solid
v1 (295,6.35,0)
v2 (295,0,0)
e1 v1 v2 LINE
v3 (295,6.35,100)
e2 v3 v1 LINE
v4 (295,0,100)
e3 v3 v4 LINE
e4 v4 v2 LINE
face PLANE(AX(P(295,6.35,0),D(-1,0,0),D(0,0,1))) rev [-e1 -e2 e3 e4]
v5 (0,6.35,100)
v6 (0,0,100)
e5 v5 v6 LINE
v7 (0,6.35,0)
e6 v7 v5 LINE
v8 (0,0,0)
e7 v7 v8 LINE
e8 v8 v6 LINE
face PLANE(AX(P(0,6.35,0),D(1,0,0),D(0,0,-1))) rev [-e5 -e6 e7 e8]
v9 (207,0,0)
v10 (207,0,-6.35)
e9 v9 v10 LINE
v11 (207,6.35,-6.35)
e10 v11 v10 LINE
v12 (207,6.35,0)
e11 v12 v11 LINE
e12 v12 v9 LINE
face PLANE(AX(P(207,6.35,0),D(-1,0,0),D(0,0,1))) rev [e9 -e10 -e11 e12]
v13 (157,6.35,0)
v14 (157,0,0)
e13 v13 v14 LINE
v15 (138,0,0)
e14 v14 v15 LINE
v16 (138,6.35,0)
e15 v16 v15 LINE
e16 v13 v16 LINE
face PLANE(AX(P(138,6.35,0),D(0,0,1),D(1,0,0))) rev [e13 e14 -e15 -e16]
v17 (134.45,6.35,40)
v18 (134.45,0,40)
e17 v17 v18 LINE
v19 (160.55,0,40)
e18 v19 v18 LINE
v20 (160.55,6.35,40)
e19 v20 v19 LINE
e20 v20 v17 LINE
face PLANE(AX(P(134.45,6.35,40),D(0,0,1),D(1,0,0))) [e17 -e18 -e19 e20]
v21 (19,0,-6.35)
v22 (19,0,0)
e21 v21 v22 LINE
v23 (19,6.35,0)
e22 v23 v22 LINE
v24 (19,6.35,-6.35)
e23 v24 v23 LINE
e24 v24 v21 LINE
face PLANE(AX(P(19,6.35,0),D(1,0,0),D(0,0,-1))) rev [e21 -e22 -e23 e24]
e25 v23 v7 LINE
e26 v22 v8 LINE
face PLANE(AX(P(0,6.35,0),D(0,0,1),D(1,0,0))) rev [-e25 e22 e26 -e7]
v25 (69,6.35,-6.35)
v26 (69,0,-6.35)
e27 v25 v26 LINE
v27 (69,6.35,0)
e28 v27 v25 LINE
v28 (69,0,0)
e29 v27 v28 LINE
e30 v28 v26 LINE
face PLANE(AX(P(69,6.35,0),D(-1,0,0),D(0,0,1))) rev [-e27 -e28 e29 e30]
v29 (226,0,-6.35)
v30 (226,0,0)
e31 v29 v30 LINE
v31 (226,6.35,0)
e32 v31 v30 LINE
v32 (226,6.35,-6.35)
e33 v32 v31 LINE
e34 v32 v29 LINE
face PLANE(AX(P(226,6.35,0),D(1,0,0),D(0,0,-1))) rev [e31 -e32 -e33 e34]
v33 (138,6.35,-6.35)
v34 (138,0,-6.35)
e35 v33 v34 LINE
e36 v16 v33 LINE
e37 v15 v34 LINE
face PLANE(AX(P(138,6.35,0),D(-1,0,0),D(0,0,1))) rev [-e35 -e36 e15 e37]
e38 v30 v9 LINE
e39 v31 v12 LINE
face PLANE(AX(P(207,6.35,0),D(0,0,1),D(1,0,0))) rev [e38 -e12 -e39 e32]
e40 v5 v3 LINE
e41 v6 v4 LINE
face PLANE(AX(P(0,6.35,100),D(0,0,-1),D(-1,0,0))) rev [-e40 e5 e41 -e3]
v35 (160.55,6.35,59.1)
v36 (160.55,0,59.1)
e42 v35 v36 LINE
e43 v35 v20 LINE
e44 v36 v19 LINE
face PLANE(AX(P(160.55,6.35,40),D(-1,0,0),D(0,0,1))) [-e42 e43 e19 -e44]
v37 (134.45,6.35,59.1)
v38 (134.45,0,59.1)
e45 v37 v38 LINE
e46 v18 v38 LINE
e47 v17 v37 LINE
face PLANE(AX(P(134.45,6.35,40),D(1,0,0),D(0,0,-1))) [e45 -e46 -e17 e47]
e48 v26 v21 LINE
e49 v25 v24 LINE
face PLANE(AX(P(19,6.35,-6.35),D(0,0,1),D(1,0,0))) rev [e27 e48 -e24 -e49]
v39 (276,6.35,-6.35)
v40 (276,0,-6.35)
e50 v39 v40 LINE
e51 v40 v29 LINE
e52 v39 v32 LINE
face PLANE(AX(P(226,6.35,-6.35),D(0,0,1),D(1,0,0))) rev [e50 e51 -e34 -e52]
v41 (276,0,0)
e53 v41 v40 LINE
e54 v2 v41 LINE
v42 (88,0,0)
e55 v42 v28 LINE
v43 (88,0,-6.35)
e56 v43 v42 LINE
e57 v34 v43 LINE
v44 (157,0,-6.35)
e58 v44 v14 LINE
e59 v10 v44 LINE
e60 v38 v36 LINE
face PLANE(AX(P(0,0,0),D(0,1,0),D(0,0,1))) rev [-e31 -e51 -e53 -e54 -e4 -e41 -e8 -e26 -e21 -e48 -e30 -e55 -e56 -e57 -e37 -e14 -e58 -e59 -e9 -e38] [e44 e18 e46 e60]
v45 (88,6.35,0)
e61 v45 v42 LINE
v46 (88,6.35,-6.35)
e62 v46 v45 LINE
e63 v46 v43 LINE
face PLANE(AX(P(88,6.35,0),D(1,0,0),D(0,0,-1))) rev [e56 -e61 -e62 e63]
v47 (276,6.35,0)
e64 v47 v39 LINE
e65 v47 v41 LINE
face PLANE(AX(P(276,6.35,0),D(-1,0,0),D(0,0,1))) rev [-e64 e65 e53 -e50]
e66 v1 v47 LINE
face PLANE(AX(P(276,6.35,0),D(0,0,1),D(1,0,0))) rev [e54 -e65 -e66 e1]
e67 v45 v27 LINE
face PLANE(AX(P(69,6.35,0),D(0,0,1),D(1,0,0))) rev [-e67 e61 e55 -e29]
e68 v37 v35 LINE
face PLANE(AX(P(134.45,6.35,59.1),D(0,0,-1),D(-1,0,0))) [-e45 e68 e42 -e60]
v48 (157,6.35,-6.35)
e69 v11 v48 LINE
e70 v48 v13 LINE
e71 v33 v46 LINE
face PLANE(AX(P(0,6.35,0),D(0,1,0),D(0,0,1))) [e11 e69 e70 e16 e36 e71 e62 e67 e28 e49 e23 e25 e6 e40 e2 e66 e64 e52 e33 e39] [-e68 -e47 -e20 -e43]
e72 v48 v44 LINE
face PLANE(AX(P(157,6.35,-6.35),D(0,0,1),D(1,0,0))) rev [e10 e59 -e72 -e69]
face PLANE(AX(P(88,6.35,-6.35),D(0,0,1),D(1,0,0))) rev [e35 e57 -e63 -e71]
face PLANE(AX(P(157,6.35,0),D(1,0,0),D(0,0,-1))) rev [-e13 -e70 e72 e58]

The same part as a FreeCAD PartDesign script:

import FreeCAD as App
import Part
import Sketcher


def add_polygon(sketch, points):
    """Adds a closed chain of lines whose ends are joined by coincident constraints."""
    first, n = sketch.GeometryCount, len(points)
    for a, b in zip(points, points[1:] + points[:1]):
        sketch.addGeometry(Part.LineSegment(App.Vector(*a, 0), App.Vector(*b, 0)), False)
    for i in range(n):
        sketch.addConstraint(Sketcher.Constraint("Coincident", first + i, 2, first + (i + 1) % n, 1))

doc = App.newDocument("Part")
body = doc.addObject("PartDesign::Body", "Body")

sketch1 = doc.addObject("Sketcher::SketchObject", "Sketch")
body.addObject(sketch1)
sketch1.AttachmentSupport = (doc.XZ_Plane, [""])
sketch1.MapMode = "FlatFace"
add_polygon(sketch1, [(0, 0), (0, 100), (295, 100), (295, 0), (276, 0), (276, -6), (226, -6), (226, 0), (207, 0), (207, -6), (157, -6), (157, 0), (138, 0), (138, -6), (88, -6), (88, 0), (69, 0), (69, -6), (19, -6), (19, 0)])
add_polygon(sketch1, [(161, 59), (134, 59), (134, 40), (161, 40)])
sketch1.addConstraint([
    Sketcher.Constraint("Vertical", 0),
    Sketcher.Constraint("Horizontal", 1),
    Sketcher.Constraint("Vertical", 2),
    Sketcher.Constraint("Horizontal", 3),
    Sketcher.Constraint("Vertical", 4),
    Sketcher.Constraint("Horizontal", 5),
    Sketcher.Constraint("Vertical", 6),
    Sketcher.Constraint("Horizontal", 7),
    Sketcher.Constraint("Vertical", 8),
    Sketcher.Constraint("Horizontal", 9),
    Sketcher.Constraint("Vertical", 10),
    Sketcher.Constraint("Horizontal", 11),
    Sketcher.Constraint("Vertical", 12),
    Sketcher.Constraint("Horizontal", 13),
    Sketcher.Constraint("Vertical", 14),
    Sketcher.Constraint("Horizontal", 15),
    Sketcher.Constraint("Vertical", 16),
    Sketcher.Constraint("Horizontal", 17),
    Sketcher.Constraint("Vertical", 18),
    Sketcher.Constraint("Horizontal", 19),
    Sketcher.Constraint("Horizontal", 20),
    Sketcher.Constraint("Vertical", 21),
    Sketcher.Constraint("Horizontal", 22),
    Sketcher.Constraint("Vertical", 23),
    Sketcher.Constraint("Coincident", 19, 2, -1, 1),
    Sketcher.Constraint("PointOnObject", 2, 2, -1),
    Sketcher.Constraint("PointOnObject", 6, 2, -1),
    Sketcher.Constraint("PointOnObject", 10, 2, -1),
    Sketcher.Constraint("PointOnObject", 14, 2, -1),
    Sketcher.Constraint("Horizontal", 5, 2, 8, 2),
    Sketcher.Constraint("Horizontal", 9, 2, 12, 2),
    Sketcher.Constraint("Horizontal", 13, 2, 16, 2),
    Sketcher.Constraint("Equal", 3, 7),
    Sketcher.Constraint("Equal", 5, 9),
    Sketcher.Constraint("Equal", 7, 11),
    Sketcher.Constraint("Equal", 9, 13),
    Sketcher.Constraint("Equal", 11, 15),
    Sketcher.Constraint("Equal", 13, 17),
    Sketcher.Constraint("Equal", 15, 19),
    Sketcher.Constraint("DistanceX", 1, 1, 1, 2, 295.0),
    Sketcher.Constraint("DistanceX", 3, 2, 3, 1, 19.0),
    Sketcher.Constraint("DistanceY", 0, 1, 0, 2, 100.0),
    Sketcher.Constraint("DistanceX", 20, 2, 20, 1, 26.1),
    Sketcher.Constraint("DistanceY", 21, 2, 21, 1, 19.1),
    Sketcher.Constraint("DistanceY", -1, 1, 21, 2, 40.0),
    Sketcher.Constraint("DistanceY", 4, 2, 4, 1, 6.35),
    Sketcher.Constraint("DistanceX", -1, 1, 20, 2, 134.45),
])
pad1 = doc.addObject("PartDesign::Pad", "Pad")
body.addObject(pad1)
pad1.Profile = sketch1
pad1.Length = 6.35
pad1.Reversed = True

doc.recompute()
